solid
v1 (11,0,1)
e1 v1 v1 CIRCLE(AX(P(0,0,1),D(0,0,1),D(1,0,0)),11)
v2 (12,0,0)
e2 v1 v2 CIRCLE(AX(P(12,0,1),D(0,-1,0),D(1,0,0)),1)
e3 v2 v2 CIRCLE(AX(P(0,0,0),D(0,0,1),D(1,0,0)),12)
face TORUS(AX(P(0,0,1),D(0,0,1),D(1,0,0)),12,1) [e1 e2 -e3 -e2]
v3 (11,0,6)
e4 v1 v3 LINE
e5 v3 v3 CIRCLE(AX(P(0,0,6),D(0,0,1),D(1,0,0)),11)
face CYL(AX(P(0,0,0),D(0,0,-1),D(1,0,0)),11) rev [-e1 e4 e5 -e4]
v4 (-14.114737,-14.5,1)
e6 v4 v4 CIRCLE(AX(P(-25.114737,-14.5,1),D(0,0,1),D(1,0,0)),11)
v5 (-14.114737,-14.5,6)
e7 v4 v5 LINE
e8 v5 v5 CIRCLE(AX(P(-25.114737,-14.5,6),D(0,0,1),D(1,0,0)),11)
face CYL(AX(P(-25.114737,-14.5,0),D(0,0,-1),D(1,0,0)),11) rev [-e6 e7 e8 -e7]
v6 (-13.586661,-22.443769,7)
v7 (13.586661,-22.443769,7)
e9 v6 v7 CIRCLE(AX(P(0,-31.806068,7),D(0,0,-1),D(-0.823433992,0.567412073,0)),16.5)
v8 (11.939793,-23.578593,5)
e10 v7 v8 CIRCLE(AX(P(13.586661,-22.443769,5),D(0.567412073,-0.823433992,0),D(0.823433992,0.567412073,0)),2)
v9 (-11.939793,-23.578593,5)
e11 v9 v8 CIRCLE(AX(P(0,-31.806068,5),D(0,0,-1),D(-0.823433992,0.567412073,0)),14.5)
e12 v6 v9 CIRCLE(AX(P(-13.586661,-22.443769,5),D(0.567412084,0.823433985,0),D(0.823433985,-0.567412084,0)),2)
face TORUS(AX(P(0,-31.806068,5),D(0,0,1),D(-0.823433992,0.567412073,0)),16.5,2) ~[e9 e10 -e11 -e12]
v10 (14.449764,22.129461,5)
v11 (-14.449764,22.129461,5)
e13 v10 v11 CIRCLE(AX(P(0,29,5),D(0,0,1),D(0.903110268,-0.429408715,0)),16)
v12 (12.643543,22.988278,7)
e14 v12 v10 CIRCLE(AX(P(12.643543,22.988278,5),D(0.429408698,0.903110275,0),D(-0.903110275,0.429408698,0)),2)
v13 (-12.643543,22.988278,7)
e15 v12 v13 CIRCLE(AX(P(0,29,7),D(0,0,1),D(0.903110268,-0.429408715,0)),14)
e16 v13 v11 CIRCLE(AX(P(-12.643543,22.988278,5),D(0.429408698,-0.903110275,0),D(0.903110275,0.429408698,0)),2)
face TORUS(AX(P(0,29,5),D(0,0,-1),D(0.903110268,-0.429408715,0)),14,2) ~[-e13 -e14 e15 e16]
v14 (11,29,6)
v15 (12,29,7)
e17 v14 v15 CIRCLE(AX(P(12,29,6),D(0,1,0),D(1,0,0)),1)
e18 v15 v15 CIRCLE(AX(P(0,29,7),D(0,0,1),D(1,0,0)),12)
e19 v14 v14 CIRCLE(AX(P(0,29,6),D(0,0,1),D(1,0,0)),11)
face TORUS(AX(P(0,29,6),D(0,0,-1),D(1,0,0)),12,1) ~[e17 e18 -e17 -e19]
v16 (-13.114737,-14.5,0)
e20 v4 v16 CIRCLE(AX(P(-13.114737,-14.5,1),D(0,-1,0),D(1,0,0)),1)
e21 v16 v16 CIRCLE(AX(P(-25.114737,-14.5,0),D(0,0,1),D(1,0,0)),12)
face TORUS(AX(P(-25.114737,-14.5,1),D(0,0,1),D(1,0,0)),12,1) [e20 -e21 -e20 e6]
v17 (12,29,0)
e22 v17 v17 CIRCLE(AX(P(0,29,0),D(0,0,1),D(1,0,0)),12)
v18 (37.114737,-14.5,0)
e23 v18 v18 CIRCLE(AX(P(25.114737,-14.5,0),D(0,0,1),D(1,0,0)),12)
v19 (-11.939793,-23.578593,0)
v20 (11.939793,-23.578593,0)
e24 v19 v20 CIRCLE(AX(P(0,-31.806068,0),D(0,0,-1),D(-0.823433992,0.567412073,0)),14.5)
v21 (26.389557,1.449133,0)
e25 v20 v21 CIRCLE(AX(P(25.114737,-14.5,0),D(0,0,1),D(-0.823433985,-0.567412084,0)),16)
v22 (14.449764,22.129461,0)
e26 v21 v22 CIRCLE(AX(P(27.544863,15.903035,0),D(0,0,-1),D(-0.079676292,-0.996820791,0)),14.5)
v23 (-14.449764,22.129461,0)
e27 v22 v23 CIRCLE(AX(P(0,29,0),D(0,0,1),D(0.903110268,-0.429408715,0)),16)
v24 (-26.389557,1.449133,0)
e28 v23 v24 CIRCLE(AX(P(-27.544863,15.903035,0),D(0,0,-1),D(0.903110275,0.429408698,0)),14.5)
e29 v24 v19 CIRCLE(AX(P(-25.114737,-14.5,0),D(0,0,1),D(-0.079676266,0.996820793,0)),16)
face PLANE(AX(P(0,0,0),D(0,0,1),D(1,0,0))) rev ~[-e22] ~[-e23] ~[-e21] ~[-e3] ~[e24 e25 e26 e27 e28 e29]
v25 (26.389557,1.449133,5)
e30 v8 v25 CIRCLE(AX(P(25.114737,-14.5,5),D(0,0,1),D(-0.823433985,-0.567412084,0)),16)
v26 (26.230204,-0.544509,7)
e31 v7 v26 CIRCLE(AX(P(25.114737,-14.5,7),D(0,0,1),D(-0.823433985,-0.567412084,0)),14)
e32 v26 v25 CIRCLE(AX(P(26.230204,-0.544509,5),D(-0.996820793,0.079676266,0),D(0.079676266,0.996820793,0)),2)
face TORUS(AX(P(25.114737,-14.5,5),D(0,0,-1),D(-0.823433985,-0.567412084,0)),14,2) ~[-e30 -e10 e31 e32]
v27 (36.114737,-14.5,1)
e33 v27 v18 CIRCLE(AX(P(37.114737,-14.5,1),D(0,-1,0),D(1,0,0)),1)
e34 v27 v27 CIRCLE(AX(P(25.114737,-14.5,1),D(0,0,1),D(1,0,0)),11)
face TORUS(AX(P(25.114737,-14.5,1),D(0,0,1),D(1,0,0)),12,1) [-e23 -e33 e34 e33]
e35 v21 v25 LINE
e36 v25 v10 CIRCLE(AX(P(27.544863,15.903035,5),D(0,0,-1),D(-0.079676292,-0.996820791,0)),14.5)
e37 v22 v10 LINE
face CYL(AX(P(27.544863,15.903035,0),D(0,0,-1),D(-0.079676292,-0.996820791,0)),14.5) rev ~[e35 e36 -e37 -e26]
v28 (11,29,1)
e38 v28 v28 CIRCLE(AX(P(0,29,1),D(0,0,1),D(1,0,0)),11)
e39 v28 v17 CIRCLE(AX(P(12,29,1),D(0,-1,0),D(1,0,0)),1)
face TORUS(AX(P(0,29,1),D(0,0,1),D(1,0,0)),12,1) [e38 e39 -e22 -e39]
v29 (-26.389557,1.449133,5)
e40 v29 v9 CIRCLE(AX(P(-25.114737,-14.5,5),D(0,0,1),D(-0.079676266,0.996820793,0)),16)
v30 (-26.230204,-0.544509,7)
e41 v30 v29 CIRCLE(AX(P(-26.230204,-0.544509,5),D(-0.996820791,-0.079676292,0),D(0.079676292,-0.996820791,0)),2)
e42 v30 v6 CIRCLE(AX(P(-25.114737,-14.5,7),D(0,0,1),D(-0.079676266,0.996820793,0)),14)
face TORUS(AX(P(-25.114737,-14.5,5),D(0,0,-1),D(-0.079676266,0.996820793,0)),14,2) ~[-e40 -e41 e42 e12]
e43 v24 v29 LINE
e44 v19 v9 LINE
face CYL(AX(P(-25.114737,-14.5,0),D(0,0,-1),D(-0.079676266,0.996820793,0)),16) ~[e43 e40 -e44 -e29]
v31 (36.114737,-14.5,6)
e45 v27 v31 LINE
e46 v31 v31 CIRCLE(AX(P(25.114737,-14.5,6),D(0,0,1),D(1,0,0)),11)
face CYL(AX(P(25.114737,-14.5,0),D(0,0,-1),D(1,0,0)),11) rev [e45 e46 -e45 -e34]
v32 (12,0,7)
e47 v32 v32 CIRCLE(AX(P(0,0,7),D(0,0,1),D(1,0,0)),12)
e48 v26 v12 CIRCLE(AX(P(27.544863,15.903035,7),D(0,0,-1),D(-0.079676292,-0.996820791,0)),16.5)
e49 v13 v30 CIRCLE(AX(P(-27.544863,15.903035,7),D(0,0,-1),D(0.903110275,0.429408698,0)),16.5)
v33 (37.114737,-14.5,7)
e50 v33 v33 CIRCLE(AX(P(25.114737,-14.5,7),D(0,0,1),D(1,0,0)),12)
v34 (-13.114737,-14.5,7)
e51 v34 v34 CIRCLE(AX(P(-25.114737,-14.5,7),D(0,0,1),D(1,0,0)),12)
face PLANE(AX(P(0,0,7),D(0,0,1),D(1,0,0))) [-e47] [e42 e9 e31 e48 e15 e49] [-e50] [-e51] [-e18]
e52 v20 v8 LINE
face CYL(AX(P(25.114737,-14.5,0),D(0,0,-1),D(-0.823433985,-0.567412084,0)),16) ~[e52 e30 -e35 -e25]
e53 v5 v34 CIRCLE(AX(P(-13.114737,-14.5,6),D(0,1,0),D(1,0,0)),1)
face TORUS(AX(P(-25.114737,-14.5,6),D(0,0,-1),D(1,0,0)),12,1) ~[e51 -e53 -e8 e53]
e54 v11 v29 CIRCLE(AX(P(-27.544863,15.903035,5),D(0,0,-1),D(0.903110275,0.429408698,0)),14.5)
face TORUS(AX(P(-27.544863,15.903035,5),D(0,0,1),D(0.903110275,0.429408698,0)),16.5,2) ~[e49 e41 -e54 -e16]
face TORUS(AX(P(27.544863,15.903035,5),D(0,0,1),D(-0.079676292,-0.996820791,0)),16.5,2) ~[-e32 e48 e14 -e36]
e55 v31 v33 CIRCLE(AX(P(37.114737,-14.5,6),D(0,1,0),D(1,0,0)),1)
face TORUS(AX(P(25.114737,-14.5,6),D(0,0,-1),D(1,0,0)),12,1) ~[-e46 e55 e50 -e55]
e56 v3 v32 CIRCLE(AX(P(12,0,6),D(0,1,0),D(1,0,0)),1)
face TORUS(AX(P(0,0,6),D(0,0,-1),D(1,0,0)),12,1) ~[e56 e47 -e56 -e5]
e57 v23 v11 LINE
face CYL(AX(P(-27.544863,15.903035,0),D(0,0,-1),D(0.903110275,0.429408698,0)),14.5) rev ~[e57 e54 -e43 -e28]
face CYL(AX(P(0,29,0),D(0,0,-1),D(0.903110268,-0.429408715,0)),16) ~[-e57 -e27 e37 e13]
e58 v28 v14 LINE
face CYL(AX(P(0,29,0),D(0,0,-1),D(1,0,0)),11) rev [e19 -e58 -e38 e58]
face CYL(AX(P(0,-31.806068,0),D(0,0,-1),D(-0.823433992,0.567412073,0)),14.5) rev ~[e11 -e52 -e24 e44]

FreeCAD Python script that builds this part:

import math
import FreeCAD as App
import Part
import Sketcher

V = App.Vector


def edges_at(feature, points):
    """Names of the edges that pass closest to the given points."""
    edges = feature.Shape.Edges
    near = lambda p: min(range(len(edges)), key=lambda i: edges[i].distToShape(Part.Vertex(*p))[0])
    return sorted({f"Edge{near(p) + 1}" for p in points})

doc = App.newDocument("Part")
body = doc.addObject("PartDesign::Body", "Body")

# Sketch on XY plane
sketch1 = body.newObject("Sketcher::SketchObject", "Sketch")
sketch1.AttachmentSupport = (doc.getObject("XY_Plane"), [""])
sketch1.MapMode = "FlatFace"
sketch1.addGeometry([
    Part.ArcOfCircle(Part.Circle(V(28, 16, 0), V(0, 0, 1), 15), math.radians(155), math.radians(265)),  # 0
    Part.ArcOfCircle(Part.Circle(V(0, 29, 0), V(0, 0, 1), 16), math.radians(-25), math.radians(205)),  # 1
    Part.ArcOfCircle(Part.Circle(V(-28, 16, 0), V(0, 0, 1), 15), math.radians(-85), math.radians(25)),  # 2
    Part.ArcOfCircle(Part.Circle(V(-25, -14, 0), V(0, 0, 1), 16), math.radians(95), math.radians(325)),  # 3
    Part.ArcOfCircle(Part.Circle(V(0, -32, 0), V(0, 0, 1), 15), math.radians(35), math.radians(145)),  # 4
    Part.ArcOfCircle(Part.Circle(V(25, -14, 0), V(0, 0, 1), 16), math.radians(-145), math.radians(85)),  # 5
    Part.Circle(V(-25, -14, 0), V(0, 0, 1), 11),  # 6
    Part.Circle(V(25, -14, 0), V(0, 0, 1), 11),  # 7
    Part.Circle(V(0, 0, 0), V(0, 0, 1), 11),  # 8
    Part.Circle(V(0, 29, 0), V(0, 0, 1), 11),  # 9
], False)
sketch1.addConstraint([
    Sketcher.Constraint("Tangent", 0, 1, 1, 1),
    Sketcher.Constraint("Tangent", 1, 2, 2, 2),
    Sketcher.Constraint("Tangent", 2, 1, 3, 1),
    Sketcher.Constraint("Tangent", 3, 2, 4, 2),
    Sketcher.Constraint("Tangent", 4, 1, 5, 1),
    Sketcher.Constraint("Tangent", 5, 2, 0, 2),
    Sketcher.Constraint("Coincident", 8, 3, -1, 1),
    Sketcher.Constraint("Coincident", 6, 3, 3, 3),
    Sketcher.Constraint("Coincident", 7, 3, 5, 3),
    Sketcher.Constraint("Coincident", 9, 3, 1, 3),
    Sketcher.Constraint("Equal", 0, 2),
    Sketcher.Constraint("Equal", 1, 3),
    Sketcher.Constraint("Equal", 2, 4),
    Sketcher.Constraint("Equal", 3, 5),
    Sketcher.Constraint("Equal", 6, 7),
    Sketcher.Constraint("Equal", 7, 8),
    Sketcher.Constraint("Equal", 8, 9),
    Sketcher.Constraint("Symmetric", 0, 3, 2, 3, -2),
    Sketcher.Constraint("PointOnObject", 4, 3, -2),
    Sketcher.Constraint("Diameter", 6, 22.0),
    Sketcher.Constraint("Radius", 1, 16.0),
    Sketcher.Constraint("Radius", 0, 14.5),
    Sketcher.Constraint("DistanceY", -1, 1, 1, 3, 29.0),
    Sketcher.Constraint("DistanceY", 3, 3, -1, 1, 14.5),
    Sketcher.Constraint("DistanceX", 3, 3, 0, 3, 52.6596),
])
pad1 = body.newObject("PartDesign::Pad", "Pad")
pad1.Profile = sketch1
pad1.Length = 7
doc.recompute()

fillet = body.newObject("PartDesign::Fillet", "Fillet")
fillet.Base = (pad1, edges_at(pad1, [
    (-11, 29, 7),
    (-11, 0, 7),
    (14.115, -14.5, 7),
    (-36.115, -14.5, 7),
    (-36.115, -14.5, 0),
    (-11, 0, 0),
    (14.115, -14.5, 0),
    (-11, 29, 0),
]))
fillet.Radius = 1
doc.recompute()

fillet2 = body.newObject("PartDesign::Fillet", "Fillet001")
fillet2.Base = (fillet, edges_at(fillet, [(-14.987, 8.653, 7)]))
fillet2.Radius = 2

doc.recompute()
